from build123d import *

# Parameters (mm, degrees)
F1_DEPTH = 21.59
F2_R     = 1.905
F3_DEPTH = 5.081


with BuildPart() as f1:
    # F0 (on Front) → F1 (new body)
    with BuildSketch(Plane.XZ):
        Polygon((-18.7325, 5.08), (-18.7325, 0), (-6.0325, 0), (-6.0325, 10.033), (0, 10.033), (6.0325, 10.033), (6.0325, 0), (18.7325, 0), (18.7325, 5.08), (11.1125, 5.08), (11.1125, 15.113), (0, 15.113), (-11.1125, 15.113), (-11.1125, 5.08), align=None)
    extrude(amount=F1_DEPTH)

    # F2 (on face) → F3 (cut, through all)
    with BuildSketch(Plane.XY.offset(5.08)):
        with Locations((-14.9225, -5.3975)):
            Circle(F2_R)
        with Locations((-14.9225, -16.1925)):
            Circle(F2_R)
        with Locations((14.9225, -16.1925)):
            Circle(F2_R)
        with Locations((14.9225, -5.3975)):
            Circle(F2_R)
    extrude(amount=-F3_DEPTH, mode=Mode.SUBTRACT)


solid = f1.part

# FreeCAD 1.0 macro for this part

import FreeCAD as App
import Part
import Sketcher
from FreeCAD import Vector
Q = App.Units.Quantity


def add_polygon(sketch, points):
    """Adds a closed chain of lines whose ends are joined by coincident constraints."""
    first, n = sketch.GeometryCount, len(points)
    for a, b in zip(points, points[1:] + points[:1]):
        sketch.addGeometry(Part.LineSegment(App.Vector(*a, 0), App.Vector(*b, 0)), False)
    for i in range(n):
        sketch.addConstraint(Sketcher.Constraint("Coincident", first + i, 2, first + (i + 1) % n, 1))

doc = App.newDocument("Part")
params = doc.addObject("Spreadsheet::Sheet", "Params")
for row, (alias, value) in enumerate([
    ("sketch1_width", "0.5 in"),
    ("sketch1_width2", "0.3 in"),
    ("sketch1_height", "0.2 in"),
    ("sketch1_width3", "0.475 in"),
    ("sketch1_height2", "0.395 in"),
    ("pad1_length", "0.85 in"),
    ("sketch2_diameter", "0.15 in"),
], start=1):
    params.set(f"A{row}", alias)
    params.set(f"B{row}", "=" + value)
    params.setAlias(f"B{row}", alias)

body = doc.addObject("PartDesign::Body", "Body")

# Sketch on XZ plane
sketch1 = body.newObject("Sketcher::SketchObject", "Sketch")
sketch1.AttachmentSupport = (doc.getObject("XZ_Plane"), [""])
sketch1.MapMode = "FlatFace"
add_polygon(sketch1, [(-19, 5), (-19, 0), (-6, 0), (-6, 10), (6, 10), (6, 0), (19, 0), (19, 5), (11, 5), (11, 15), (-11, 15), (-11, 5)])  # lines 0-11
sketch1.addConstraint(Sketcher.Constraint("Vertical", 0))
sketch1.addConstraint(Sketcher.Constraint("Horizontal", 1))
sketch1.addConstraint(Sketcher.Constraint("Vertical", 2))
sketch1.addConstraint(Sketcher.Constraint("Horizontal", 3))
sketch1.addConstraint(Sketcher.Constraint("Vertical", 4))
sketch1.addConstraint(Sketcher.Constraint("Horizontal", 5))
sketch1.addConstraint(Sketcher.Constraint("Vertical", 6))
sketch1.addConstraint(Sketcher.Constraint("Horizontal", 7))
sketch1.addConstraint(Sketcher.Constraint("Vertical", 8))
sketch1.addConstraint(Sketcher.Constraint("Horizontal", 9))
sketch1.addConstraint(Sketcher.Constraint("Vertical", 10))
sketch1.addConstraint(Sketcher.Constraint("Horizontal", 11))
sketch1.addConstraint(Sketcher.Constraint("Symmetric", 1, 2, 4, 2, -1, 1))
sketch1.addConstraint(Sketcher.Constraint("Symmetric", 0, 2, 5, 2, -2))
sketch1.addConstraint(Sketcher.Constraint("Symmetric", 7, 2, 10, 2, -2))
sketch1.addConstraint(Sketcher.Constraint("Equal", 4, 8))
sketch1.addConstraint(Sketcher.Constraint("DistanceX", 1, 1, 1, 2, Q("0.5 in")))
sketch1.addConstraint(Sketcher.Constraint("DistanceX", 7, 2, 7, 1, Q("0.3 in")))
sketch1.addConstraint(Sketcher.Constraint("DistanceY", 0, 2, 0, 1, Q("0.2 in")))
sketch1.addConstraint(Sketcher.Constraint("DistanceX", 3, 1, 3, 2, Q("0.475 in")))
sketch1.addConstraint(Sketcher.Constraint("DistanceY", 2, 1, 2, 2, Q("0.395 in")))
sketch1.setExpression("Constraints[28]", "Params.sketch1_width")
sketch1.setExpression("Constraints[29]", "Params.sketch1_width2")
sketch1.setExpression("Constraints[30]", "Params.sketch1_height")
sketch1.setExpression("Constraints[31]", "Params.sketch1_width3")
sketch1.setExpression("Constraints[32]", "Params.sketch1_height2")
pad1 = body.newObject("PartDesign::Pad", "Pad")
pad1.Profile = sketch1
pad1.setExpression("Length", "Params.pad1_length")

# Sketch on XY plane
sketch2 = body.newObject("Sketcher::SketchObject", "Sketch001")
sketch2.AttachmentSupport = (doc.getObject("XY_Plane"), [""])
sketch2.MapMode = "FlatFace"
sketch2.AttachmentOffset = App.Placement(Vector(0, 0, 0.2 * 25.4), App.Rotation())
sketch2.addGeometry(Part.Circle(Vector(-14.9, -5.4, 0), Vector(0, 0, 1), 1.9), False)
sketch2.addGeometry(Part.Circle(Vector(-14.9, -16.2, 0), Vector(0, 0, 1), 1.9), False)
sketch2.addGeometry(Part.Circle(Vector(14.9, -16.2, 0), Vector(0, 0, 1), 1.9), False)
sketch2.addGeometry(Part.Circle(Vector(14.9, -5.4, 0), Vector(0, 0, 1), 1.9), False)
sketch2.addConstraint(Sketcher.Constraint("Equal", 0, 1))
sketch2.addConstraint(Sketcher.Constraint("Equal", 1, 2))
sketch2.addConstraint(Sketcher.Constraint("Equal", 2, 3))
sketch2.addConstraint(Sketcher.Constraint("Symmetric", 1, 3, 2, 3, -2))
sketch2.addConstraint(Sketcher.Constraint("Symmetric", 0, 3, 3, 3, -2))
sketch2.addConstraint(Sketcher.Constraint("Vertical", 0, 3, 1, 3))
sketch2.addConstraint(Sketcher.Constraint("Diameter", 0, Q("0.15 in")))
sketch2.addConstraint(Sketcher.Constraint("DistanceY", 1, 3, 0, 3, Q("0.425 in")))
sketch2.addConstraint(Sketcher.Constraint("DistanceX", 1, 3, 2, 3, Q("1.175 in")))
sketch2.addConstraint(Sketcher.Constraint("DistanceY", 0, 3, -1, 1, Q("0.2125 in")))
sketch2.setExpression("Constraints[6]", "Params.sketch2_diameter")
pocket1 = body.newObject("PartDesign::Pocket", "Pocket")
pocket1.Profile = sketch2
pocket1.Type = "ThroughAll"

doc.recompute()
